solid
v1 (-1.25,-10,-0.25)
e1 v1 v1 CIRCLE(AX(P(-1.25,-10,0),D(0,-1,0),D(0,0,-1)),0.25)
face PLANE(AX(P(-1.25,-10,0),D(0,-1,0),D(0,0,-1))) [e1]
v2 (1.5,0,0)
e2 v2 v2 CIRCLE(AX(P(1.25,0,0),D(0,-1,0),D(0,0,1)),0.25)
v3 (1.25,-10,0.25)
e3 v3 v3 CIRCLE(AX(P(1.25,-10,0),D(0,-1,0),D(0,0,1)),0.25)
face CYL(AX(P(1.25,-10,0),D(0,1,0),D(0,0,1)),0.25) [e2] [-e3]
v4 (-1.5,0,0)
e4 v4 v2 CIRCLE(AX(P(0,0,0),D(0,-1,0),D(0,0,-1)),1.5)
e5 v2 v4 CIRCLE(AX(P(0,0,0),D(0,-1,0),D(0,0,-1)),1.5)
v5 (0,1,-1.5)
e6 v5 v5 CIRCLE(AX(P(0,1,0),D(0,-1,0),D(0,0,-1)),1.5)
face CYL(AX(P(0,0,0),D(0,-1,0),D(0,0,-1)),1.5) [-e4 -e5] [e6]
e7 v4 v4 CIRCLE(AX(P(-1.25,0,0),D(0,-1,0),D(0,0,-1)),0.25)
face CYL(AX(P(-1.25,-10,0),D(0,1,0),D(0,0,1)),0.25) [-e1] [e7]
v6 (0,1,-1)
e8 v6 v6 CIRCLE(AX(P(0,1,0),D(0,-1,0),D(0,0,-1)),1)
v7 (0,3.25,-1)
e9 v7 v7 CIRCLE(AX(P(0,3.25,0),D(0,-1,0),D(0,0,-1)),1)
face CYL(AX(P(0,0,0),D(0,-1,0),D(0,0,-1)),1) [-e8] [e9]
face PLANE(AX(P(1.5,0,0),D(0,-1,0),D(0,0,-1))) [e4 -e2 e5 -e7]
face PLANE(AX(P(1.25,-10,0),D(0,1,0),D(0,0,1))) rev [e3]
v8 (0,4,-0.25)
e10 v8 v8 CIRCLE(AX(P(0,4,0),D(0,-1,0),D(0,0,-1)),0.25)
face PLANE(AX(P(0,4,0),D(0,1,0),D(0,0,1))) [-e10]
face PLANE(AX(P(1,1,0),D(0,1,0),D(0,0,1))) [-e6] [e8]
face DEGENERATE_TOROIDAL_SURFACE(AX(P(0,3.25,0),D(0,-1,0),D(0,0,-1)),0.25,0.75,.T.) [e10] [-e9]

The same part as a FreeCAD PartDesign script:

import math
import FreeCAD as App
import Part
import Sketcher

V = App.Vector

doc = App.newDocument("Part")
body = doc.addObject("PartDesign::Body", "Body")

sketch1 = doc.addObject("Sketcher::SketchObject", "Sketch")
body.addObject(sketch1)
sketch1.AttachmentSupport = (doc.XY_Plane, [""])
sketch1.MapMode = "FlatFace"
sketch1.addGeometry([
    Part.LineSegment(V(0.25, 4, 0), V(0, 4, 0)),
    Part.LineSegment(V(0, 4, 0), V(0, 0, 0)),
    Part.LineSegment(V(0, 0, 0), V(1.5, 0, 0)),
    Part.LineSegment(V(1.5, 0, 0), V(1.5, 1, 0)),
    Part.LineSegment(V(1.5, 1, 0), V(1, 1, 0)),
    Part.LineSegment(V(1, 1, 0), V(1, 3.25, 0)),
    Part.ArcOfCircle(Part.Circle(V(0.25, 3.25, 0), V(0, 0, 1), 0.75), math.radians(0), math.radians(90)),
], False)
sketch1.addConstraint([
    Sketcher.Constraint("Coincident", 0, 2, 1, 1),
    Sketcher.Constraint("Coincident", 1, 2, 2, 1),
    Sketcher.Constraint("Coincident", 2, 2, 3, 1),
    Sketcher.Constraint("Coincident", 3, 2, 4, 1),
    Sketcher.Constraint("Coincident", 4, 2, 5, 1),
    Sketcher.Constraint("Tangent", 5, 2, 6, 1),
    Sketcher.Constraint("Tangent", 6, 2, 0, 1),
    Sketcher.Constraint("Horizontal", 0),
    Sketcher.Constraint("Vertical", 1),
    Sketcher.Constraint("Horizontal", 2),
    Sketcher.Constraint("Vertical", 3),
    Sketcher.Constraint("Horizontal", 4),
    Sketcher.Constraint("Vertical", 5),
    Sketcher.Constraint("Coincident", 1, 2, -1, 1),
    Sketcher.Constraint("DistanceY", 1, 2, 1, 1, 4.0),
    Sketcher.Constraint("DistanceY", 3, 1, 3, 2, 1.0),
    Sketcher.Constraint("Radius", 6, 0.75),
    Sketcher.Constraint("DistanceX", 2, 1, 2, 2, 1.5),
    Sketcher.Constraint("DistanceX", 4, 2, 4, 1, 0.5),
])
revolution = doc.addObject("PartDesign::Revolution", "Revolution")
body.addObject(revolution)
revolution.Profile = sketch1
revolution.ReferenceAxis = (sketch1, ["V_Axis"])
revolution.Angle = 360

sketch2 = doc.addObject("Sketcher::SketchObject", "Sketch001")
body.addObject(sketch2)
sketch2.AttachmentSupport = (doc.XZ_Plane, [""])
sketch2.MapMode = "FlatFace"
sketch2.addGeometry([
    Part.Circle(V(-1.25, 0, 0), V(0, 0, 1), 0.25),
    Part.Circle(V(1.25, 0, 0), V(0, 0, 1), 0.25),
], False)
sketch2.addConstraint([
    Sketcher.Constraint("Equal", 0, 1),
    Sketcher.Constraint("Symmetric", 0, 3, 1, 3, -1, 1),
    Sketcher.Constraint("PointOnObject", 0, 3, -1),
    Sketcher.Constraint("Diameter", 0, 0.5),
    Sketcher.Constraint("DistanceX", 0, 3, 1, 3, 2.5),
])
pad1 = doc.addObject("PartDesign::Pad", "Pad")
body.addObject(pad1)
pad1.Profile = sketch2
pad1.Length = 10

doc.recompute()
